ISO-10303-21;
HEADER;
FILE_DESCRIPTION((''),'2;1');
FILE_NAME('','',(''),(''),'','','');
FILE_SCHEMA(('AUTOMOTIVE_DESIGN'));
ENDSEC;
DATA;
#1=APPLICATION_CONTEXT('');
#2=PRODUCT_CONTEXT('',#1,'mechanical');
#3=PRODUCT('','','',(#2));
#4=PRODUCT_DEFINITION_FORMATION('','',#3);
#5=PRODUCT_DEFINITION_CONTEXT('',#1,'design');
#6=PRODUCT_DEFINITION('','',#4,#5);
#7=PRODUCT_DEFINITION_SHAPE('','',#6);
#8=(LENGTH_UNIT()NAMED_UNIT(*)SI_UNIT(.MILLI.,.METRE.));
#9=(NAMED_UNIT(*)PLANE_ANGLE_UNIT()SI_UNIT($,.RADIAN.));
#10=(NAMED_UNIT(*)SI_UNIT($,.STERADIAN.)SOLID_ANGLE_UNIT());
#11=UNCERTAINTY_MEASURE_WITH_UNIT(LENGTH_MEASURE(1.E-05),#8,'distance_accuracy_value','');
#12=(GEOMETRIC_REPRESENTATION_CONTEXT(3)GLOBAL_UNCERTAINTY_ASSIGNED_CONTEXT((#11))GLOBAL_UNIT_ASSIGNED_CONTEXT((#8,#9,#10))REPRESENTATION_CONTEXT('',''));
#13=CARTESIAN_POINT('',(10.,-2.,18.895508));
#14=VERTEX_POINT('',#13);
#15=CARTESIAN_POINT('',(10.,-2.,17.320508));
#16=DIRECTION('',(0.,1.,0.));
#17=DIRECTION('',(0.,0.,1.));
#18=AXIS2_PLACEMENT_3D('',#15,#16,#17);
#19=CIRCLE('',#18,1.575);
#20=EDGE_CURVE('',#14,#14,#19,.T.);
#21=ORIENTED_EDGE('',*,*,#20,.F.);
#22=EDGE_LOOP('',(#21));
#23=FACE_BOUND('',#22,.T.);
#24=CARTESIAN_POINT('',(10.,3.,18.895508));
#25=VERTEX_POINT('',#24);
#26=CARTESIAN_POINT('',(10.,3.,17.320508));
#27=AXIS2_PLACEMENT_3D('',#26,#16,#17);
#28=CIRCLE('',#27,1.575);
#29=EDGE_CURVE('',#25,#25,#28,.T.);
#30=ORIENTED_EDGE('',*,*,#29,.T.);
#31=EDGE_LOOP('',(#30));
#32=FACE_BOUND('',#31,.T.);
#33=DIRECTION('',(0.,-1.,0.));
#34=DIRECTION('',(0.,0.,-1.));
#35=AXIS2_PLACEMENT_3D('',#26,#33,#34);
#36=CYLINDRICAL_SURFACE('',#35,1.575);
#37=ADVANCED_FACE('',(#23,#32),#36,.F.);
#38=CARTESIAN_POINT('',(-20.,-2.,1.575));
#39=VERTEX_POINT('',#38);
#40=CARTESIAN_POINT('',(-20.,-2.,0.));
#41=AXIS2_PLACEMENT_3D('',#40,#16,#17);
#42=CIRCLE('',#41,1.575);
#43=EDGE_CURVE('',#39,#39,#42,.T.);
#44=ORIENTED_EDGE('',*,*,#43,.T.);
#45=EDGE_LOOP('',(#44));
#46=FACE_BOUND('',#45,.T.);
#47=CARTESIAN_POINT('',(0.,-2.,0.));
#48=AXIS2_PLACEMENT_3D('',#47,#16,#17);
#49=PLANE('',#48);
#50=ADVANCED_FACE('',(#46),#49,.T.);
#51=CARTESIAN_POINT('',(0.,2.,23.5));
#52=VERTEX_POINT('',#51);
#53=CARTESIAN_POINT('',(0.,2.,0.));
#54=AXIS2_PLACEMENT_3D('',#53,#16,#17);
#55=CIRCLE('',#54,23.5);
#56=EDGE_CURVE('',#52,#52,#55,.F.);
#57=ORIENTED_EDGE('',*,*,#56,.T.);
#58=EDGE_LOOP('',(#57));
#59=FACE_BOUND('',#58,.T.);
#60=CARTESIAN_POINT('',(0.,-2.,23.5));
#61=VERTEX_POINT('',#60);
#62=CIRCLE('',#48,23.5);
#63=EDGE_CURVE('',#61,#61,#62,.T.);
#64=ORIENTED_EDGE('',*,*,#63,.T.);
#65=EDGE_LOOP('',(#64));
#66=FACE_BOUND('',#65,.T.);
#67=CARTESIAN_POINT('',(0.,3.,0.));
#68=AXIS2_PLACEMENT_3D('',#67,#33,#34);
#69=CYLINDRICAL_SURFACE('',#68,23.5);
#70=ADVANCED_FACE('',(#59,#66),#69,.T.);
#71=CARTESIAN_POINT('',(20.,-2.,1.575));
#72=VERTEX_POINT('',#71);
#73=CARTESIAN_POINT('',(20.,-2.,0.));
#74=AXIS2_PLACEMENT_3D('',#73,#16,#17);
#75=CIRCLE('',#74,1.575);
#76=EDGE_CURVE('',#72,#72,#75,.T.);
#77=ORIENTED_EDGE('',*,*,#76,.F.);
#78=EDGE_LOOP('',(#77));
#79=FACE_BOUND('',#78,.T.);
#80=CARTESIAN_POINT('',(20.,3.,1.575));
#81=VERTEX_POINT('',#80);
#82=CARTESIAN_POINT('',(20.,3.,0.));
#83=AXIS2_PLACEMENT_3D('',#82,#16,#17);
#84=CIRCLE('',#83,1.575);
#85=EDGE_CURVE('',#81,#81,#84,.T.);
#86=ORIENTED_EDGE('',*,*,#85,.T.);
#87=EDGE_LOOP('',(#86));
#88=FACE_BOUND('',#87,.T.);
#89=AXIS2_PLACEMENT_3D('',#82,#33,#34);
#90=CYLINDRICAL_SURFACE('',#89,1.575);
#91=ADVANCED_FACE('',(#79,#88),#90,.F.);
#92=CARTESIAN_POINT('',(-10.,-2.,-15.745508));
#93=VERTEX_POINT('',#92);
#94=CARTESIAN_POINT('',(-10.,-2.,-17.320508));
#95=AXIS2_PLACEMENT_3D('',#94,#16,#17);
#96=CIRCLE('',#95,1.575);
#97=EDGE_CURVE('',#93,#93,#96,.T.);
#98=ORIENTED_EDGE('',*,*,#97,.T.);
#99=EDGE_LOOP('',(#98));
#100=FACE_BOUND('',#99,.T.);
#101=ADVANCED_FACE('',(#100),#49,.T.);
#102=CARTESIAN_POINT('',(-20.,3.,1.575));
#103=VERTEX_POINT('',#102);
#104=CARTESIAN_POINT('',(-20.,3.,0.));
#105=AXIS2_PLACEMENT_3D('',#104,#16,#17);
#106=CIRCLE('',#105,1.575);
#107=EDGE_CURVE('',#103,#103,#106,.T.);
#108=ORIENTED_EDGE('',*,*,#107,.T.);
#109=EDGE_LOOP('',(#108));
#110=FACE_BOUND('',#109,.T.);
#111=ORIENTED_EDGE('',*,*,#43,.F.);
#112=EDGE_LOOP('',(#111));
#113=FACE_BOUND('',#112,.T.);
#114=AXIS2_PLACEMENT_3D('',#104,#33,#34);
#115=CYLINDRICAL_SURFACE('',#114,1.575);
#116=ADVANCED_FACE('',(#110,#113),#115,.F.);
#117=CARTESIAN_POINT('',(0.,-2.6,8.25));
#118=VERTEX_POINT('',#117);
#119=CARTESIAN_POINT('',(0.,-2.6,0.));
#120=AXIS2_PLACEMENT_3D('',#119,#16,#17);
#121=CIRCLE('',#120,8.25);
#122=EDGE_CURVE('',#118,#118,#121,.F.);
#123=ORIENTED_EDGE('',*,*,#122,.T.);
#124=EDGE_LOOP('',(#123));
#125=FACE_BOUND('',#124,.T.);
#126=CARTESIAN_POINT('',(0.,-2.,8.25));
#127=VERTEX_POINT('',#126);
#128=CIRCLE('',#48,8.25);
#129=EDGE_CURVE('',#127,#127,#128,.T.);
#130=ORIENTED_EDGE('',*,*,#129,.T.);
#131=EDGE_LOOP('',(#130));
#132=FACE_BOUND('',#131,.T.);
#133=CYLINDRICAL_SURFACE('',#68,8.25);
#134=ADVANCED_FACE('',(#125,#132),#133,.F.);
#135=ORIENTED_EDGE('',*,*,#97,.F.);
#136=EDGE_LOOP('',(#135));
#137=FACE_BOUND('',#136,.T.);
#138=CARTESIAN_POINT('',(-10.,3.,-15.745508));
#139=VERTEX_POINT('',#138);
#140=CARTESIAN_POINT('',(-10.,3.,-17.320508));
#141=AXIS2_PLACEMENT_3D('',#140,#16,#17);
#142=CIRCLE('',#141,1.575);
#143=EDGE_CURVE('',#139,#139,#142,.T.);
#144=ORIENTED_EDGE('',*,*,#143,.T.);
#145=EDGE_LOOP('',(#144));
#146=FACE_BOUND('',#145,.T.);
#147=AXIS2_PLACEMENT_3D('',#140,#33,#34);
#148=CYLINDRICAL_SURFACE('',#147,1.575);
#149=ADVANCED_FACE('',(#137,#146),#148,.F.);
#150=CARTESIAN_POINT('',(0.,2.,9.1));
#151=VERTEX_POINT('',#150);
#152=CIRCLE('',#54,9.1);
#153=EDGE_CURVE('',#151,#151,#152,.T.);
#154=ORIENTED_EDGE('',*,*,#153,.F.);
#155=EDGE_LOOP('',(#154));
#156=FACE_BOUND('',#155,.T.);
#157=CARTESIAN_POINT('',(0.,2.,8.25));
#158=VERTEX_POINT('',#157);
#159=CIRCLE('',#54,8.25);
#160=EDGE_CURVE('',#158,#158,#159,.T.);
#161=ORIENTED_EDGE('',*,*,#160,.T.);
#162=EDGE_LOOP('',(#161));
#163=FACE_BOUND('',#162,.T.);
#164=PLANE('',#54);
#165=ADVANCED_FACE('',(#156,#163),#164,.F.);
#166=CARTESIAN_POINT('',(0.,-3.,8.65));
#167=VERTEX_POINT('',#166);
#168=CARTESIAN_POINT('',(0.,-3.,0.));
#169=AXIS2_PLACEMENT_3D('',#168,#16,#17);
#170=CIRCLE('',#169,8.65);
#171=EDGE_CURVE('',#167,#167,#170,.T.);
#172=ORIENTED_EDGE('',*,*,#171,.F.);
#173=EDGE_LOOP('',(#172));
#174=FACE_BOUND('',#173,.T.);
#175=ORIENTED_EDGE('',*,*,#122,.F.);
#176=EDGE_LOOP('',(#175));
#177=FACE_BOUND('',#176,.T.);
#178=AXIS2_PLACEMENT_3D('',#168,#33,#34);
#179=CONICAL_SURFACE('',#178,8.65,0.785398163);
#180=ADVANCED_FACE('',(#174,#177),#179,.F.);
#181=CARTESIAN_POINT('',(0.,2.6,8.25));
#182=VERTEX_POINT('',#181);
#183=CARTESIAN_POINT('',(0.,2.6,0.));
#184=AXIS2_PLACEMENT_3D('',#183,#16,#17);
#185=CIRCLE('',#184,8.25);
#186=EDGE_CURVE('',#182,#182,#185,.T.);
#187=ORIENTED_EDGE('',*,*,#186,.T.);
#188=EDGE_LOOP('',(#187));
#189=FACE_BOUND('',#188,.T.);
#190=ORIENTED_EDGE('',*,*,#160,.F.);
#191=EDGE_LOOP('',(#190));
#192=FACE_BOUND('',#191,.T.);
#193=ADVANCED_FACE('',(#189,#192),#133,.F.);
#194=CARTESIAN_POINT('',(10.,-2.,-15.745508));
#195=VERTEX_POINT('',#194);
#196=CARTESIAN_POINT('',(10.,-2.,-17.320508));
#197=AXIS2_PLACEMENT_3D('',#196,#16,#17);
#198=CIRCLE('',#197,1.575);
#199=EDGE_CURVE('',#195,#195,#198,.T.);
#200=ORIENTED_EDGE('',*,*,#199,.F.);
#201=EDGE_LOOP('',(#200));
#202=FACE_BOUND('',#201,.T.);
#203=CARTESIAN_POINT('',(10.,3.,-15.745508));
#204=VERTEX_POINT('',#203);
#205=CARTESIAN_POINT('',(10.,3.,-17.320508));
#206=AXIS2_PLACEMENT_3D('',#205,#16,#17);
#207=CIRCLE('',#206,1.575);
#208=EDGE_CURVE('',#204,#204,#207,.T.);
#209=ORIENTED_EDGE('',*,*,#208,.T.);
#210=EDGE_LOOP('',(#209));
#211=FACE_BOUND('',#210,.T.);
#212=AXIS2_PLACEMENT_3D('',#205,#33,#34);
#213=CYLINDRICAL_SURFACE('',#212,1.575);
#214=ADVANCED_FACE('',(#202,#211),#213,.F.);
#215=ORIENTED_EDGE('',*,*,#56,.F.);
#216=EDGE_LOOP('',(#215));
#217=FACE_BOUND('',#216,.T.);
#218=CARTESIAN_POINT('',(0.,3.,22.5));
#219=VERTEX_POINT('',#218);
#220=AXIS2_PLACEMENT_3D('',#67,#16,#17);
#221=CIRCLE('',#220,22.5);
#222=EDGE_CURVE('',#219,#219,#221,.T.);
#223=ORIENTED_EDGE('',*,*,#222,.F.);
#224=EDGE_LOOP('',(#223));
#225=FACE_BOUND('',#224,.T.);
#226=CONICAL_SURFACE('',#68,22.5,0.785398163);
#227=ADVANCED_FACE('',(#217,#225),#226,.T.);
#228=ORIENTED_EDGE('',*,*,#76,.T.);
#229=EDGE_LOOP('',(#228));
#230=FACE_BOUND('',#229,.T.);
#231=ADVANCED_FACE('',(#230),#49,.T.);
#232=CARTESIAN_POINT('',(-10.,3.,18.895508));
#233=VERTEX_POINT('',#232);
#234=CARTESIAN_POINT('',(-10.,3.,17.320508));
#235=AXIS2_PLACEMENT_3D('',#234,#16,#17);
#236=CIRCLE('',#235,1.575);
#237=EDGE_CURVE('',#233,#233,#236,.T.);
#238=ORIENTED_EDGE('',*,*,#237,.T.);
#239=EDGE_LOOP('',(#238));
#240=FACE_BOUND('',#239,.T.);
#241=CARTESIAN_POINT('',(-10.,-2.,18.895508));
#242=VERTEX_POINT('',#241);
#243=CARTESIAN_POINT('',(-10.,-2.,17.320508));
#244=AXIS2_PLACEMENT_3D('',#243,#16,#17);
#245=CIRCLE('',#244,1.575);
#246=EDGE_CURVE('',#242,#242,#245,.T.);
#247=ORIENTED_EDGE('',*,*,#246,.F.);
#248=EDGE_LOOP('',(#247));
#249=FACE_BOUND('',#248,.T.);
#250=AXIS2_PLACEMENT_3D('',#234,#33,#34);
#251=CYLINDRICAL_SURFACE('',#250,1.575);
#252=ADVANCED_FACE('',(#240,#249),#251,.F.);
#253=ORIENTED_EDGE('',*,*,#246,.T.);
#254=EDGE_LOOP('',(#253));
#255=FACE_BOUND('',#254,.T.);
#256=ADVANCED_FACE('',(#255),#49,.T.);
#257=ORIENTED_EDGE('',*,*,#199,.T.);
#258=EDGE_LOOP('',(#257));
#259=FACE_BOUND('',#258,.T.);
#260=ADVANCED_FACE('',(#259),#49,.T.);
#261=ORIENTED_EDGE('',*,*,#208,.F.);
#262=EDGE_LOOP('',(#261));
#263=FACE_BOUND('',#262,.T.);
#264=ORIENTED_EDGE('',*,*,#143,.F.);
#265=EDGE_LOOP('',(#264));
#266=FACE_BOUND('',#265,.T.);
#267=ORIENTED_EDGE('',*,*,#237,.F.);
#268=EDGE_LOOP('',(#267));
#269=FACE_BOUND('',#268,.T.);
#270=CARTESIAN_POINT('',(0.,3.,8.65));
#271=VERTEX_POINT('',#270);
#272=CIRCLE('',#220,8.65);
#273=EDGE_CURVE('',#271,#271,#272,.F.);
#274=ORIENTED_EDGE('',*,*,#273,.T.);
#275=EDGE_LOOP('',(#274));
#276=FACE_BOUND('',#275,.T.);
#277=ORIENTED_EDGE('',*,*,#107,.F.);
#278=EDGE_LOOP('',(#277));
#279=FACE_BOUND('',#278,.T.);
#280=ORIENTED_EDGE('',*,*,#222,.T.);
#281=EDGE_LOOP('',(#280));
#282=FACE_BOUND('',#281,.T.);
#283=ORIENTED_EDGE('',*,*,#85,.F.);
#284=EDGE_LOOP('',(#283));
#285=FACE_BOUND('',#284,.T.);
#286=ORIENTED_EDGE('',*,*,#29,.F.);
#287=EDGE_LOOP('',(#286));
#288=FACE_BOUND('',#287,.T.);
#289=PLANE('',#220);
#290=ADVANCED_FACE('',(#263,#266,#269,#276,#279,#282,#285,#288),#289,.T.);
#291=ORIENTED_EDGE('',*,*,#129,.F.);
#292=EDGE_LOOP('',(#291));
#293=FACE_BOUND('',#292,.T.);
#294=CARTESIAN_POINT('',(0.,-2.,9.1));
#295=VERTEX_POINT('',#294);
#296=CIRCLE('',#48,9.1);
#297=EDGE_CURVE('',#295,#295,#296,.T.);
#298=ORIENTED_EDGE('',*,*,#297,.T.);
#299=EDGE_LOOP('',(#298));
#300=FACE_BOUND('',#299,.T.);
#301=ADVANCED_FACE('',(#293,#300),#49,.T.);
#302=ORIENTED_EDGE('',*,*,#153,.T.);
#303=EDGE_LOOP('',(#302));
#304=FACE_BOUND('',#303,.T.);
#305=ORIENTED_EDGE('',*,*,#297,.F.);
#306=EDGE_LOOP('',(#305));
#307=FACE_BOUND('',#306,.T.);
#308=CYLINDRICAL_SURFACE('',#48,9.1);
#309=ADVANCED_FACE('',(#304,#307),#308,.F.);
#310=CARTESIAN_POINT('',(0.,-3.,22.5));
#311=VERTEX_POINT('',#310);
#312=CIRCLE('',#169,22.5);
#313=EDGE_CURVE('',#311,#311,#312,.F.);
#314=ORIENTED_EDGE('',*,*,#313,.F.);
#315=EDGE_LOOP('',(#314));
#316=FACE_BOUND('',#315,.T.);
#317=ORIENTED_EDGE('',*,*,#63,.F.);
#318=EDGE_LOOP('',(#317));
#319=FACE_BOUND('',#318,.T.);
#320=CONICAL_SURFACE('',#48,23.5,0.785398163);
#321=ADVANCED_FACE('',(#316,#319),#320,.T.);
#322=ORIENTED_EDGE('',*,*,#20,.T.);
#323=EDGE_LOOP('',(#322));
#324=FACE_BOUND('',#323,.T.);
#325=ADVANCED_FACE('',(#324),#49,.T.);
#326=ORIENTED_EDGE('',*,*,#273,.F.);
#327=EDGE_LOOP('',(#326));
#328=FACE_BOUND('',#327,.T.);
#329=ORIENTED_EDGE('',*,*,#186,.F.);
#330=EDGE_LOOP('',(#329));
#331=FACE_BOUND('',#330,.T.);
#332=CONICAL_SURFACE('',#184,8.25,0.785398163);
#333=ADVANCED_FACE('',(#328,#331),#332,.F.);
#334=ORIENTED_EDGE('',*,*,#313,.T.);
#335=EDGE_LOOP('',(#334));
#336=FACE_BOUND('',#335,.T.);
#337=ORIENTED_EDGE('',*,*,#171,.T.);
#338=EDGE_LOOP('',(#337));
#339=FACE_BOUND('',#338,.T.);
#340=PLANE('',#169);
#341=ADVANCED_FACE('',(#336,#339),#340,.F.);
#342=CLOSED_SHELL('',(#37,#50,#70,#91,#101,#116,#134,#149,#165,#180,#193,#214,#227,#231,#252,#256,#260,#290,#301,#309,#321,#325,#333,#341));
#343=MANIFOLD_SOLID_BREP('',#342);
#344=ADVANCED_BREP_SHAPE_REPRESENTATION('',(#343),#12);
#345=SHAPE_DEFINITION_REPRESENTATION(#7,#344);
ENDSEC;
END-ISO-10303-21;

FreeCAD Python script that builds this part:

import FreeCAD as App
import Part
import Sketcher

V = App.Vector
Q = App.Units.Quantity


def edges_at(feature, points):
    """Names of the edges that pass closest to the given points."""
    edges = feature.Shape.Edges
    near = lambda p: min(range(len(edges)), key=lambda i: edges[i].distToShape(Part.Vertex(*p))[0])
    return sorted({f"Edge{near(p) + 1}" for p in points})

doc = App.newDocument("Part")
body = doc.addObject("PartDesign::Body", "Body")

sketch1 = body.newObject("Sketcher::SketchObject", "Sketch")
sketch1.AttachmentSupport = (doc.getObject("XZ_Plane"), [""])
sketch1.MapMode = "FlatFace"
sketch1.addGeometry([
    Part.Circle(V(0, 0, 0), V(0, 0, 1), 23.5),
    Part.Circle(V(-10, 17.3, 0), V(0, 0, 1), 1.6),
    Part.Circle(V(10, 17.3, 0), V(0, 0, 1), 1.6),
    Part.Circle(V(-20, 0, 0), V(0, 0, 1), 1.6),
    Part.Circle(V(-10, -17.3, 0), V(0, 0, 1), 1.6),
    Part.Circle(V(0, 0, 0), V(0, 0, 1), 8.2),
    Part.Circle(V(20, 0, 0), V(0, 0, 1), 1.6),
    Part.Circle(V(10, -17.3, 0), V(0, 0, 1), 1.6),
], False)
sketch1.addConstraint([
    Sketcher.Constraint("Coincident", 0, 3, -1, 1),
    Sketcher.Constraint("Coincident", 5, 3, -1, 1),
    Sketcher.Constraint("Equal", 1, 2),
    Sketcher.Constraint("Equal", 2, 3),
    Sketcher.Constraint("Equal", 3, 4),
    Sketcher.Constraint("Equal", 4, 6),
    Sketcher.Constraint("Equal", 6, 7),
    Sketcher.Constraint("Symmetric", 2, 3, 4, 3, -1, 1),
    Sketcher.Constraint("Symmetric", 3, 3, 6, 3, -1, 1),
    Sketcher.Constraint("Symmetric", 1, 3, 7, 3, -1, 1),
    Sketcher.Constraint("Symmetric", 1, 3, 2, 3, -2),
    Sketcher.Constraint("PointOnObject", 3, 3, -1),
    Sketcher.Constraint("Diameter", 0, Q("47 mm")),
    Sketcher.Constraint("Diameter", 5, Q("16.5 mm")),
    Sketcher.Constraint("Diameter", 1, Q("3.15 mm")),
    Sketcher.Constraint("DistanceX", 1, 3, -1, 1, Q("10 mm")),
    Sketcher.Constraint("DistanceX", 3, 3, -1, 1, Q("20 mm")),
    Sketcher.Constraint("DistanceY", -1, 1, 1, 3, Q("17.320508 mm")),
])
pad1 = body.newObject("PartDesign::Pad", "Pad")
pad1.Profile = sketch1
pad1.Length = 6
pad1.Midplane = True

sketch2 = body.newObject("Sketcher::SketchObject", "Sketch001")
sketch2.AttachmentSupport = (doc.getObject("XZ_Plane"), [""])
sketch2.MapMode = "FlatFace"
sketch2.addGeometry(Part.Circle(V(0, 0, 0), V(0, 0, 1), 9), False)
sketch2.addConstraint([
    Sketcher.Constraint("Coincident", 0, 3, -1, 1),
    Sketcher.Constraint("Diameter", 0, Q("18.2 mm")),
])
pocket1 = body.newObject("PartDesign::Pocket", "Pocket")
pocket1.Profile = sketch2
pocket1.Length = 4
pocket1.Midplane = True

sketch3 = body.newObject("Sketcher::SketchObject", "Sketch002")
sketch3.AttachmentSupport = (doc.getObject("XZ_Plane"), [""])
sketch3.MapMode = "FlatFace"
sketch3.AttachmentOffset = App.Placement(V(0, 0, 3), App.Rotation())
sketch3.addGeometry([
    Part.Circle(V(0, 0, 0), V(0, 0, 1), 22),
    Part.Circle(V(0, 0, 0), V(0, 0, 1), 18),
], False)
sketch3.addConstraint([
    Sketcher.Constraint("Coincident", 0, 3, -1, 1),
    Sketcher.Constraint("Coincident", 1, 3, -1, 1),
    Sketcher.Constraint("Diameter", 0, Q("43.15 mm")),
    Sketcher.Constraint("Diameter", 1, Q("36.85 mm")),
])
pad2 = body.newObject("PartDesign::Pad", "Pad001")
pad2.Profile = sketch3
pad2.Length = 1
pad2.Reversed = True
doc.recompute()

chamfer = body.newObject("PartDesign::Chamfer", "Chamfer")
chamfer.Base = (pad2, edges_at(pad2, [(-23.5, -3, 0), (-23.5, 3, 0)]))
chamfer.Size = 1
doc.recompute()

chamfer2 = body.newObject("PartDesign::Chamfer", "Chamfer001")
chamfer2.Base = (chamfer, edges_at(chamfer, [(-8.25, -3, 0), (-8.25, 3, 0)]))
chamfer2.Size = 0.4

doc.recompute()
